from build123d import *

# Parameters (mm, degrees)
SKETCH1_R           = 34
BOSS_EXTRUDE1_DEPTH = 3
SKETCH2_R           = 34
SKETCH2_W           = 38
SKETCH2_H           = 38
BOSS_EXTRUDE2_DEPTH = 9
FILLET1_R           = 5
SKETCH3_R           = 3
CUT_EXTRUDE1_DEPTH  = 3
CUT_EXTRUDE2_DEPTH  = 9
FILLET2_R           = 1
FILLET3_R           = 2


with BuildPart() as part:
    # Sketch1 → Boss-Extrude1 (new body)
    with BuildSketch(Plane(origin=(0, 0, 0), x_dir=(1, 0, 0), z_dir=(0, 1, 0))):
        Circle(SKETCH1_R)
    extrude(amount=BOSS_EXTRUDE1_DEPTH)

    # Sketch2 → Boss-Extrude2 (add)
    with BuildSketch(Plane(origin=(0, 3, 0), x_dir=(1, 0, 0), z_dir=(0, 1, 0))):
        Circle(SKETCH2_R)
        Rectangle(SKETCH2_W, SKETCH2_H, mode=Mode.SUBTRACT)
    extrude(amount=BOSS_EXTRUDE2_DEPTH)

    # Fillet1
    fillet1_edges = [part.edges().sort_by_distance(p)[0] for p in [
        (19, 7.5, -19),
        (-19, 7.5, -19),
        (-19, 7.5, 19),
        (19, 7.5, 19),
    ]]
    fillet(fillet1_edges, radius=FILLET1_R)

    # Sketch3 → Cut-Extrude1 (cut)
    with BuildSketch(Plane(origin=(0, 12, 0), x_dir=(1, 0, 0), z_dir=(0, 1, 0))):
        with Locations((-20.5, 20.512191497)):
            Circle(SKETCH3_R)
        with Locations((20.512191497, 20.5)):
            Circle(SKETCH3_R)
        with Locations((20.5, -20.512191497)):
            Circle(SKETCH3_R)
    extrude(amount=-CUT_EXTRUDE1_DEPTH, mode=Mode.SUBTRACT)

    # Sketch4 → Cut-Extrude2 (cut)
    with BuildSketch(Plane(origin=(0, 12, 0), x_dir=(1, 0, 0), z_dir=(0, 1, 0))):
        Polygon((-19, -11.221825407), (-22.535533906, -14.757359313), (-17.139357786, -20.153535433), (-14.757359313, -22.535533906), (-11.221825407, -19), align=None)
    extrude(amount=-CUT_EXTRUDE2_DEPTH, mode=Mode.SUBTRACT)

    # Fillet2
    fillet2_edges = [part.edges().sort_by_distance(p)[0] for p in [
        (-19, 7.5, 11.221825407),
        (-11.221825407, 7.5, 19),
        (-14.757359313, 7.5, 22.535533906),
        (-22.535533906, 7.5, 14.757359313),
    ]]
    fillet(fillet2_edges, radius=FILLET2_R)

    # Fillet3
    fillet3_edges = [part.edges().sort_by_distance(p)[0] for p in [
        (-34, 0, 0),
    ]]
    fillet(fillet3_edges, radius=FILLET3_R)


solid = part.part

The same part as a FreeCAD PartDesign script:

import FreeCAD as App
import Part
import Sketcher

V = App.Vector
Q = App.Units.Quantity


def edges_at(feature, points):
    """Names of the edges that pass closest to the given points."""
    edges = feature.Shape.Edges
    near = lambda p: min(range(len(edges)), key=lambda i: edges[i].distToShape(Part.Vertex(*p))[0])
    return sorted({f"Edge{near(p) + 1}" for p in points})

doc = App.newDocument("Part")
body = doc.addObject("PartDesign::Body", "Body")

sketch1 = doc.addObject("Sketcher::SketchObject", "Sketch")
body.addObject(sketch1)
sketch1.AttachmentSupport = (doc.XZ_Plane, [""])
sketch1.MapMode = "FlatFace"
sketch1.addGeometry(Part.Circle(V(0, 0, 0), V(0, 0, 1), 34), False)
sketch1.addConstraint([
    Sketcher.Constraint("Coincident", 0, 3, -1, 1),
    Sketcher.Constraint("Diameter", 0, 68.0),
])
pad1 = doc.addObject("PartDesign::Pad", "Pad")
body.addObject(pad1)
pad1.Profile = sketch1
pad1.Length = 3
pad1.Reversed = True

sketch2 = doc.addObject("Sketcher::SketchObject", "Sketch001")
body.addObject(sketch2)
sketch2.AttachmentSupport = (doc.XZ_Plane, [""])
sketch2.MapMode = "FlatFace"
sketch2.AttachmentOffset = App.Placement(V(0, 0, -3), App.Rotation())
sketch2.addGeometry([
    Part.Circle(V(0, 0, 0), V(0, 0, 1), 34),
    Part.LineSegment(V(19, 19, 0), V(-19, 19, 0)),
    Part.LineSegment(V(-19, 19, 0), V(-19, -19, 0)),
    Part.LineSegment(V(-19, -19, 0), V(19, -19, 0)),
    Part.LineSegment(V(19, -19, 0), V(19, 19, 0)),
], False)
sketch2.addConstraint([
    Sketcher.Constraint("Coincident", 1, 2, 2, 1),
    Sketcher.Constraint("Coincident", 2, 2, 3, 1),
    Sketcher.Constraint("Coincident", 3, 2, 4, 1),
    Sketcher.Constraint("Coincident", 4, 2, 1, 1),
    Sketcher.Constraint("Horizontal", 1),
    Sketcher.Constraint("Vertical", 2),
    Sketcher.Constraint("Horizontal", 3),
    Sketcher.Constraint("Vertical", 4),
    Sketcher.Constraint("Coincident", 0, 3, -1, 1),
    Sketcher.Constraint("Symmetric", 1, 2, 3, 2, -1, 1),
    Sketcher.Constraint("Equal", 3, 2),
    Sketcher.Constraint("Diameter", 0, 68.0),
    Sketcher.Constraint("DistanceX", 1, 2, 1, 1, 38.0),
])
pad2 = doc.addObject("PartDesign::Pad", "Pad001")
body.addObject(pad2)
pad2.Profile = sketch2
pad2.Length = 9
pad2.Reversed = True
doc.recompute()

fillet = doc.addObject("PartDesign::Fillet", "Fillet")
body.addObject(fillet)
fillet.Base = (pad2, edges_at(pad2, [
    (19, 7.5, -19),
    (-19, 7.5, -19),
    (-19, 7.5, 19),
    (19, 7.5, 19),
]))
fillet.Radius = 5

sketch3 = doc.addObject("Sketcher::SketchObject", "Sketch002")
body.addObject(sketch3)
sketch3.AttachmentSupport = (doc.XZ_Plane, [""])
sketch3.MapMode = "FlatFace"
sketch3.AttachmentOffset = App.Placement(V(0, 0, -12), App.Rotation())
sketch3.addGeometry([
    Part.Circle(V(-20.5, -20.512191, 0), V(0, 0, 1), 3),
    Part.Circle(V(20.512191, -20.5, 0), V(0, 0, 1), 3),
    Part.Circle(V(20.5, 20.512191, 0), V(0, 0, 1), 3),
], False)
sketch3.addConstraint([
    Sketcher.Constraint("Equal", 0, 1),
    Sketcher.Constraint("Equal", 1, 2),
    Sketcher.Constraint("Symmetric", 0, 3, 2, 3, -1, 1),
    Sketcher.Constraint("Diameter", 0, 6.0),
    Sketcher.Constraint("DistanceX", 0, 3, 2, 3, 41.0),
    Sketcher.Constraint("DistanceY", 1, 3, -1, 1, 20.5),
    Sketcher.Constraint("DistanceY", 0, 3, -1, 1, 20.512191),
    Sketcher.Constraint("DistanceX", -1, 1, 1, 3, 20.512191),
])
pocket1 = doc.addObject("PartDesign::Pocket", "Pocket")
body.addObject(pocket1)
pocket1.Profile = sketch3
pocket1.Length = 3
pocket1.Reversed = True

sketch4 = doc.addObject("Sketcher::SketchObject", "Sketch003")
body.addObject(sketch4)
sketch4.AttachmentSupport = (doc.XZ_Plane, [""])
sketch4.MapMode = "FlatFace"
sketch4.AttachmentOffset = App.Placement(V(0, 0, -12), App.Rotation())
sketch4.addGeometry([
    Part.LineSegment(V(-19, 11.221825, 0), V(-22.535534, 14.757359, 0)),
    Part.LineSegment(V(-22.535534, 14.757359, 0), V(-14.757359, 22.535534, 0)),
    Part.LineSegment(V(-14.757359, 22.535534, 0), V(-11.221825, 19, 0)),
    Part.LineSegment(V(-11.221825, 19, 0), V(-19, 11.221825, 0)),
], False)
sketch4.addConstraint([
    Sketcher.Constraint("Coincident", 0, 2, 1, 1),
    Sketcher.Constraint("Coincident", 1, 2, 2, 1),
    Sketcher.Constraint("Coincident", 2, 2, 3, 1),
    Sketcher.Constraint("Coincident", 3, 2, 0, 1),
    Sketcher.Constraint("Perpendicular", 0, 1),
    Sketcher.Constraint("Perpendicular", 1, 2),
    Sketcher.Constraint("Perpendicular", 2, 3),
    Sketcher.Constraint("Angle", 0, Q("135 deg")),
    Sketcher.Constraint("Distance", 0, 5.0),
    Sketcher.Constraint("Distance", 1, 11.0),
    Sketcher.Constraint("DistanceY", -1, 1, 2, 2, 19.0),
    Sketcher.Constraint("DistanceX", 3, 2, -1, 1, 19.0),
])
pocket2 = doc.addObject("PartDesign::Pocket", "Pocket001")
body.addObject(pocket2)
pocket2.Profile = sketch4
pocket2.Length = 9
pocket2.Reversed = True
doc.recompute()

fillet2 = doc.addObject("PartDesign::Fillet", "Fillet001")
body.addObject(fillet2)
fillet2.Base = (pocket2, edges_at(pocket2, [
    (-19, 7.5, 11.222),
    (-11.222, 7.5, 19),
    (-14.757, 7.5, 22.536),
    (-22.536, 7.5, 14.757),
]))
fillet2.Radius = 1
doc.recompute()

fillet3 = doc.addObject("PartDesign::Fillet", "Fillet002")
body.addObject(fillet3)
fillet3.Base = (fillet2, edges_at(fillet2, [(-34, 0, 0)]))
fillet3.Radius = 2

doc.recompute()
